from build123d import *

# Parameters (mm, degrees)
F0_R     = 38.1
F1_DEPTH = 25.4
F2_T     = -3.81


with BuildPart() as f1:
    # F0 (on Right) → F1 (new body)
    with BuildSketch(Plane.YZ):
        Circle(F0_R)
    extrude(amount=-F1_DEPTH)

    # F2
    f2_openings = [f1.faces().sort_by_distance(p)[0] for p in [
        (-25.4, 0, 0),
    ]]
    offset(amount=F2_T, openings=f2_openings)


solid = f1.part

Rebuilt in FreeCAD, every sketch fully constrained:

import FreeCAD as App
import Part
import Sketcher

V = App.Vector
Q = App.Units.Quantity


def faces_at(feature, points):
    """Names of the faces that lie closest to the given points."""
    faces = feature.Shape.Faces
    near = lambda p: min(range(len(faces)), key=lambda i: faces[i].distToShape(Part.Vertex(*p))[0])
    return sorted({f"Face{near(p) + 1}" for p in points})

doc = App.newDocument("Part")
body = doc.addObject("PartDesign::Body", "Body")

# Sketch on YZ plane
sketch1 = body.newObject("Sketcher::SketchObject", "Sketch")
sketch1.AttachmentSupport = (doc.getObject("YZ_Plane"), [""])
sketch1.MapMode = "FlatFace"
sketch1.addGeometry(Part.Circle(V(0, 0, 0), V(0, 0, 1), 38), False)
sketch1.addConstraint([
    Sketcher.Constraint("Coincident", 0, 3, -1, 1),
    Sketcher.Constraint("Diameter", 0, Q("3 in")),
])
pad1 = body.newObject("PartDesign::Pad", "Pad")
pad1.Profile = sketch1
pad1.Length = Q("1 in")
pad1.Reversed = True
doc.recompute()

thickness = body.newObject("PartDesign::Thickness", "Thickness")
thickness.Base = (pad1, faces_at(pad1, [(-25.4, 0, 0)]))
thickness.Value = Q("0.15 in")
thickness.Reversed = True
thickness.Join = "Arc"

doc.recompute()
